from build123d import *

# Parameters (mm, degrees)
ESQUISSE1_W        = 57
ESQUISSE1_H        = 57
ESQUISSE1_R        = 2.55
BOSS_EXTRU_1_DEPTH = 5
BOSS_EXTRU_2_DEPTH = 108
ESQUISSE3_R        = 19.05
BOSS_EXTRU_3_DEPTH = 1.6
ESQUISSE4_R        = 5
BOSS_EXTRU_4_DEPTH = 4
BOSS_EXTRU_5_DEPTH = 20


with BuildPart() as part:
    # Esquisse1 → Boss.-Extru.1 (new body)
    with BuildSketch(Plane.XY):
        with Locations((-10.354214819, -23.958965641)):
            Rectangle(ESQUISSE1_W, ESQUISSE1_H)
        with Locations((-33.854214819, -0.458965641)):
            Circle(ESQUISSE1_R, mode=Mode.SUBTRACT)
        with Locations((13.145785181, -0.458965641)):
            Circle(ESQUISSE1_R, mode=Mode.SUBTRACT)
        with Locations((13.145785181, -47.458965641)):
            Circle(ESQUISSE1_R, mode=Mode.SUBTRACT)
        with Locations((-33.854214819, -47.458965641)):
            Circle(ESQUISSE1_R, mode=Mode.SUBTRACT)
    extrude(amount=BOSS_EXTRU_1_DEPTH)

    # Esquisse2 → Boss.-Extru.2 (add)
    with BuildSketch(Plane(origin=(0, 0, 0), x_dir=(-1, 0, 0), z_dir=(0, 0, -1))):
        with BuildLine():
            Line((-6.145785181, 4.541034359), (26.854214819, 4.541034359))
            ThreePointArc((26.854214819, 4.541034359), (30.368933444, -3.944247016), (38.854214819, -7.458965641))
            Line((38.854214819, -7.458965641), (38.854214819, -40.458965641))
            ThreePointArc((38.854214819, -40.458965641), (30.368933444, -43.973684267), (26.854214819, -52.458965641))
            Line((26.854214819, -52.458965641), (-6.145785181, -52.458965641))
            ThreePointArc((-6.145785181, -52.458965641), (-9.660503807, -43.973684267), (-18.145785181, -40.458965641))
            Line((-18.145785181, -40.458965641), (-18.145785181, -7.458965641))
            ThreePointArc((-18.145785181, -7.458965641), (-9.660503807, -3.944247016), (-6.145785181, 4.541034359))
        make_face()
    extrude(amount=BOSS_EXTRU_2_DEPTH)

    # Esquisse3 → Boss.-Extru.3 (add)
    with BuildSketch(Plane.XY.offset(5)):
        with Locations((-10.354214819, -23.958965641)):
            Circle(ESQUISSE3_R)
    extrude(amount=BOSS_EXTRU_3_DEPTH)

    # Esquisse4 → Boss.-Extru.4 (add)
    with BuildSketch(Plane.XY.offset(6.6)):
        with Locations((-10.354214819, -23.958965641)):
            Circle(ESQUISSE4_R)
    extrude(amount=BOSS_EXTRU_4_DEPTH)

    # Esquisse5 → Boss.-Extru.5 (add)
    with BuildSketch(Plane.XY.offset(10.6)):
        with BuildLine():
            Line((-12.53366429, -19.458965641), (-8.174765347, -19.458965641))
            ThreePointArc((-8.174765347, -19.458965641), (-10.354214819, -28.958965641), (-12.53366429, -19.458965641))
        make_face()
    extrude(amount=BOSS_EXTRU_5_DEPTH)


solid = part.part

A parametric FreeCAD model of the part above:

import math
import FreeCAD as App
import Part
import Sketcher


def add_polygon(sketch, points):
    """Adds a closed chain of lines whose ends are joined by coincident constraints."""
    first, n = sketch.GeometryCount, len(points)
    for a, b in zip(points, points[1:] + points[:1]):
        sketch.addGeometry(Part.LineSegment(App.Vector(*a, 0), App.Vector(*b, 0)), False)
    for i in range(n):
        sketch.addConstraint(Sketcher.Constraint("Coincident", first + i, 2, first + (i + 1) % n, 1))

doc = App.newDocument("Part")
params = doc.addObject("Spreadsheet::Sheet", "Params")
for row, (alias, value) in enumerate([
    ("sketch1_diameter", "5.1 mm"),
    ("sketch1_width", "57 mm"),
    ("pad1_length", "5 mm"),
    ("sketch2_radius", "12 mm"),
    ("sketch2_width", "33 mm"),
    ("pad2_length", "108 mm"),
    ("sketch3_diameter", "38.1 mm"),
    ("pad3_length", "1.6 mm"),
    ("sketch4_diameter", "10 mm"),
    ("pad4_length", "4 mm"),
    ("sketch5_radius", "5 mm"),
    ("pad5_length", "20 mm"),
], start=1):
    params.set(f"A{row}", alias)
    params.set(f"B{row}", "=" + value)
    params.setAlias(f"B{row}", alias)

body = doc.addObject("PartDesign::Body", "Body")

# Sketch on XY plane
sketch1 = body.newObject("Sketcher::SketchObject", "Sketch")
sketch1.AttachmentSupport = (doc.getObject("XY_Plane"), [""])
sketch1.MapMode = "FlatFace"
add_polygon(sketch1, [(-38.9, 4.5), (-38.9, -52.5), (18.1, -52.5), (18.1, 4.5)])  # lines 0-3
sketch1.addGeometry(Part.Circle(App.Vector(-33.9, -47.5, 0), App.Vector(0, 0, 1), 2.5), False)  # 4
sketch1.addGeometry(Part.Circle(App.Vector(13.1, -47.5, 0), App.Vector(0, 0, 1), 2.5), False)  # 5
sketch1.addGeometry(Part.Circle(App.Vector(-33.9, -0.5, 0), App.Vector(0, 0, 1), 2.5), False)  # 6
sketch1.addGeometry(Part.Circle(App.Vector(13.1, -0.5, 0), App.Vector(0, 0, 1), 2.5), False)  # 7
sketch1.addConstraint(Sketcher.Constraint("Vertical", 0))
sketch1.addConstraint(Sketcher.Constraint("Horizontal", 1))
sketch1.addConstraint(Sketcher.Constraint("Vertical", 2))
sketch1.addConstraint(Sketcher.Constraint("Horizontal", 3))
sketch1.addConstraint(Sketcher.Constraint("Equal", 4, 5))
sketch1.addConstraint(Sketcher.Constraint("Equal", 5, 6))
sketch1.addConstraint(Sketcher.Constraint("Equal", 6, 7))
sketch1.addConstraint(Sketcher.Constraint("Horizontal", 4, 3, 5, 3))
sketch1.addConstraint(Sketcher.Constraint("Horizontal", 6, 3, 7, 3))
sketch1.addConstraint(Sketcher.Constraint("Vertical", 4, 3, 6, 3))
sketch1.addConstraint(Sketcher.Constraint("Vertical", 5, 3, 7, 3))
sketch1.addConstraint(Sketcher.Constraint("Equal", 3, 0))
sketch1.addConstraint(Sketcher.Constraint("Diameter", 4, 5.1))
sketch1.addConstraint(Sketcher.Constraint("DistanceX", 1, 1, 1, 2, 57.0))
sketch1.addConstraint(Sketcher.Constraint("DistanceX", 4, 3, 5, 3, 47.0))
sketch1.addConstraint(Sketcher.Constraint("DistanceY", 4, 3, 6, 3, 47.0))
sketch1.addConstraint(Sketcher.Constraint("DistanceX", 0, 2, 4, 3, 5.0))
sketch1.addConstraint(Sketcher.Constraint("DistanceY", 0, 2, 4, 3, 5.0))
sketch1.addConstraint(Sketcher.Constraint("DistanceX", 4, 3, -1, 1, 33.854215))
sketch1.addConstraint(Sketcher.Constraint("DistanceY", 4, 3, -1, 1, 47.458966))
sketch1.setExpression("Constraints[16]", "Params.sketch1_diameter")
sketch1.setExpression("Constraints[17]", "Params.sketch1_width")
pad1 = body.newObject("PartDesign::Pad", "Pad")
pad1.Profile = sketch1
pad1.setExpression("Length", "Params.pad1_length")

# Sketch on XY plane
sketch2 = body.newObject("Sketcher::SketchObject", "Sketch001")
sketch2.AttachmentSupport = (doc.getObject("XY_Plane"), [""])
sketch2.MapMode = "FlatFace"
sketch2.addGeometry(Part.LineSegment(App.Vector(-27, 5, 0), App.Vector(6, 5, 0)), False)
sketch2.addGeometry(Part.ArcOfCircle(Part.Circle(App.Vector(18, 5, 0), App.Vector(0, 0, 1), 12), math.radians(180), math.radians(270)), False)
sketch2.addGeometry(Part.LineSegment(App.Vector(18, -7, 0), App.Vector(18, -40, 0)), False)
sketch2.addGeometry(Part.ArcOfCircle(Part.Circle(App.Vector(18, -52, 0), App.Vector(0, 0, 1), 12), math.radians(90), math.radians(180)), False)
sketch2.addGeometry(Part.LineSegment(App.Vector(6, -52, 0), App.Vector(-27, -52, 0)), False)
sketch2.addGeometry(Part.ArcOfCircle(Part.Circle(App.Vector(-39, -52, 0), App.Vector(0, 0, 1), 12), math.radians(0), math.radians(90)), False)
sketch2.addGeometry(Part.LineSegment(App.Vector(-39, -40, 0), App.Vector(-39, -7, 0)), False)
sketch2.addGeometry(Part.ArcOfCircle(Part.Circle(App.Vector(-39, 5, 0), App.Vector(0, 0, 1), 12), math.radians(-90), math.radians(0)), False)
sketch2.addConstraint(Sketcher.Constraint("Coincident", 0, 2, 1, 1))
sketch2.addConstraint(Sketcher.Constraint("Coincident", 1, 2, 2, 1))
sketch2.addConstraint(Sketcher.Constraint("Coincident", 2, 2, 3, 1))
sketch2.addConstraint(Sketcher.Constraint("Coincident", 3, 2, 4, 1))
sketch2.addConstraint(Sketcher.Constraint("Coincident", 4, 2, 5, 1))
sketch2.addConstraint(Sketcher.Constraint("Coincident", 5, 2, 6, 1))
sketch2.addConstraint(Sketcher.Constraint("Coincident", 6, 2, 7, 1))
sketch2.addConstraint(Sketcher.Constraint("Coincident", 7, 2, 0, 1))
sketch2.addConstraint(Sketcher.Constraint("Horizontal", 0))
sketch2.addConstraint(Sketcher.Constraint("Vertical", 2))
sketch2.addConstraint(Sketcher.Constraint("Horizontal", 4))
sketch2.addConstraint(Sketcher.Constraint("Vertical", 6))
sketch2.addConstraint(Sketcher.Constraint("Equal", 1, 3))
sketch2.addConstraint(Sketcher.Constraint("Equal", 3, 5))
sketch2.addConstraint(Sketcher.Constraint("Equal", 5, 7))
sketch2.addConstraint(Sketcher.Constraint("Horizontal", 3, 3, 5, 3))
sketch2.addConstraint(Sketcher.Constraint("Horizontal", 1, 3, 7, 3))
sketch2.addConstraint(Sketcher.Constraint("Horizontal", 7, 3, 0, 2))
sketch2.addConstraint(Sketcher.Constraint("Horizontal", 5, 3, 3, 2))
sketch2.addConstraint(Sketcher.Constraint("Vertical", 1, 3, 3, 3))
sketch2.addConstraint(Sketcher.Constraint("Vertical", 5, 3, 7, 3))
sketch2.addConstraint(Sketcher.Constraint("Vertical", 3, 3, 1, 2))
sketch2.addConstraint(Sketcher.Constraint("Vertical", 7, 3, 5, 2))
sketch2.addConstraint(Sketcher.Constraint("Equal", 4, 2))
sketch2.addConstraint(Sketcher.Constraint("Radius", 1, 12.0))
sketch2.addConstraint(Sketcher.Constraint("DistanceX", 0, 1, 0, 2, 33.0))
sketch2.addConstraint(Sketcher.Constraint("DistanceX", -1, 1, 1, 3, 18.145785))
sketch2.addConstraint(Sketcher.Constraint("DistanceY", -1, 1, 1, 3, 4.541034))
sketch2.setExpression("Constraints[24]", "Params.sketch2_radius")
sketch2.setExpression("Constraints[25]", "Params.sketch2_width")
pad2 = body.newObject("PartDesign::Pad", "Pad001")
pad2.Profile = sketch2
pad2.setExpression("Length", "Params.pad2_length")
pad2.Reversed = True

# Sketch on XY plane
sketch3 = body.newObject("Sketcher::SketchObject", "Sketch002")
sketch3.AttachmentSupport = (doc.getObject("XY_Plane"), [""])
sketch3.MapMode = "FlatFace"
sketch3.AttachmentOffset = App.Placement(App.Vector(0, 0, 5), App.Rotation())
sketch3.addGeometry(Part.Circle(App.Vector(-10, -24, 0), App.Vector(0, 0, 1), 19), False)
sketch3.addConstraint(Sketcher.Constraint("Diameter", 0, 38.1))
sketch3.addConstraint(Sketcher.Constraint("DistanceX", 0, 3, -1, 1, 10.354215))
sketch3.addConstraint(Sketcher.Constraint("DistanceY", 0, 3, -1, 1, 23.958966))
sketch3.setExpression("Constraints[0]", "Params.sketch3_diameter")
pad3 = body.newObject("PartDesign::Pad", "Pad002")
pad3.Profile = sketch3
pad3.setExpression("Length", "Params.pad3_length")

# Sketch on XY plane
sketch4 = body.newObject("Sketcher::SketchObject", "Sketch003")
sketch4.AttachmentSupport = (doc.getObject("XY_Plane"), [""])
sketch4.MapMode = "FlatFace"
sketch4.AttachmentOffset = App.Placement(App.Vector(0, 0, 6.6), App.Rotation())
sketch4.addGeometry(Part.Circle(App.Vector(-10, -24, 0), App.Vector(0, 0, 1), 5), False)
sketch4.addConstraint(Sketcher.Constraint("Diameter", 0, 10.0))
sketch4.addConstraint(Sketcher.Constraint("DistanceX", 0, 3, -1, 1, 10.354215))
sketch4.addConstraint(Sketcher.Constraint("DistanceY", 0, 3, -1, 1, 23.958966))
sketch4.setExpression("Constraints[0]", "Params.sketch4_diameter")
pad4 = body.newObject("PartDesign::Pad", "Pad003")
pad4.Profile = sketch4
pad4.setExpression("Length", "Params.pad4_length")

# Sketch on XY plane
sketch5 = body.newObject("Sketcher::SketchObject", "Sketch004")
sketch5.AttachmentSupport = (doc.getObject("XY_Plane"), [""])
sketch5.MapMode = "FlatFace"
sketch5.AttachmentOffset = App.Placement(App.Vector(0, 0, 10.6), App.Rotation())
sketch5.addGeometry(Part.LineSegment(App.Vector(-8.2, -19.5, 0), App.Vector(-12.5, -19.5, 0)), False)
sketch5.addGeometry(Part.ArcOfCircle(Part.Circle(App.Vector(-10.4, -24, 0), App.Vector(0, 0, 1), 5), math.radians(116), math.radians(424)), False)
sketch5.addConstraint(Sketcher.Constraint("Coincident", 0, 1, 1, 2))
sketch5.addConstraint(Sketcher.Constraint("Coincident", 1, 1, 0, 2))
sketch5.addConstraint(Sketcher.Constraint("Horizontal", 0))
sketch5.addConstraint(Sketcher.Constraint("Radius", 1, 5.0))
sketch5.addConstraint(Sketcher.Constraint("DistanceY", 1, 3, 0, 1, 4.5))
sketch5.addConstraint(Sketcher.Constraint("DistanceX", 1, 3, -1, 1, 10.354215))
sketch5.addConstraint(Sketcher.Constraint("DistanceY", 1, 3, -1, 1, 23.958966))
sketch5.setExpression("Constraints[3]", "Params.sketch5_radius")
pad5 = body.newObject("PartDesign::Pad", "Pad004")
pad5.Profile = sketch5
pad5.setExpression("Length", "Params.pad5_length")

doc.recompute()
